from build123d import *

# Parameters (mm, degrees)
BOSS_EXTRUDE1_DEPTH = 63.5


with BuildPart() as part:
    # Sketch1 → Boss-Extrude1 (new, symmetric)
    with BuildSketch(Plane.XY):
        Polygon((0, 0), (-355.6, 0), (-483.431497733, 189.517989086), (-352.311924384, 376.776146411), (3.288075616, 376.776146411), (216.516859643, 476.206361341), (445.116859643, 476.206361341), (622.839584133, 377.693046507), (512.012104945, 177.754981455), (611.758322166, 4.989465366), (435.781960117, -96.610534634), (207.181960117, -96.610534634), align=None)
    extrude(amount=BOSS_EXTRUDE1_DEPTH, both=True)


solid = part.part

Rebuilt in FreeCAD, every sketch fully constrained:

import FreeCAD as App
import Part
import Sketcher
from FreeCAD import Vector
Q = App.Units.Quantity


def add_polygon(sketch, points):
    """Adds a closed chain of lines whose ends are joined by coincident constraints."""
    first, n = sketch.GeometryCount, len(points)
    for a, b in zip(points, points[1:] + points[:1]):
        sketch.addGeometry(Part.LineSegment(App.Vector(*a, 0), App.Vector(*b, 0)), False)
    for i in range(n):
        sketch.addConstraint(Sketcher.Constraint("Coincident", first + i, 2, first + (i + 1) % n, 1))

doc = App.newDocument("Part")
body = doc.addObject("PartDesign::Body", "Body")

# Sketch on XY plane
sketch1 = doc.addObject("Sketcher::SketchObject", "Sketch")
body.addObject(sketch1)
sketch1.AttachmentSupport = (doc.XY_Plane, [""])
sketch1.MapMode = "FlatFace"
add_polygon(sketch1, [(-355.6, 0), (0, 0), (207.18196, -96.610535), (435.78196, -96.610535), (611.758322, 4.989465), (512.012105, 177.754981), (622.839584, 377.693047), (445.11686, 476.206361), (216.51686, 476.206361), (3.288076, 376.776146), (-352.311924, 376.776146), (-483.431498, 189.517989)])  # lines 0-11
sketch1.addConstraint(Sketcher.Constraint("Horizontal", 0))
sketch1.addConstraint(Sketcher.Constraint("Horizontal", 2))
sketch1.addConstraint(Sketcher.Constraint("Horizontal", 7))
sketch1.addConstraint(Sketcher.Constraint("Horizontal", 9))
sketch1.addConstraint(Sketcher.Constraint("Coincident", 0, 2, -1, 1))
sketch1.addConstraint(Sketcher.Constraint("Perpendicular", 3, 4))
sketch1.addConstraint(Sketcher.Constraint("Perpendicular", 5, 6))
sketch1.addConstraint(Sketcher.Constraint("Equal", 2, 7))
sketch1.addConstraint(Sketcher.Constraint("Equal", 0, 9))
sketch1.addConstraint(Sketcher.Constraint("Equal", 1, 5))
sketch1.addConstraint(Sketcher.Constraint("Equal", 3, 6))
sketch1.addConstraint(Sketcher.Constraint("Equal", 5, 10))
sketch1.addConstraint(Sketcher.Constraint("Equal", 10, 11))
sketch1.addConstraint(Sketcher.Constraint("DistanceX", 0, 1, 0, 2, Q("14 in")))
sketch1.addConstraint(Sketcher.Constraint("DistanceX", 2, 1, 2, 2, Q("9 in")))
sketch1.addConstraint(Sketcher.Constraint("Distance", 1, Q("9 in")))
sketch1.addConstraint(Sketcher.Constraint("Distance", 3, Q("8 in")))
sketch1.addConstraint(Sketcher.Constraint("Angle", 1, Q("-25 deg")))
sketch1.addConstraint(Sketcher.Constraint("Angle", 3, Q("30 deg")))
sketch1.addConstraint(Sketcher.Constraint("Angle", 5, Q("61 deg")))
sketch1.addConstraint(Sketcher.Constraint("Angle", 8, Q("-155 deg")))
sketch1.addConstraint(Sketcher.Constraint("Angle", 10, Q("-125 deg")))
sketch1.addConstraint(Sketcher.Constraint("Angle", 11, Q("-56 deg")))
pad1 = doc.addObject("PartDesign::Pad", "Pad")
body.addObject(pad1)
pad1.Profile = sketch1
pad1.Length = Q("5 in")
pad1.Midplane = True

doc.recompute()
